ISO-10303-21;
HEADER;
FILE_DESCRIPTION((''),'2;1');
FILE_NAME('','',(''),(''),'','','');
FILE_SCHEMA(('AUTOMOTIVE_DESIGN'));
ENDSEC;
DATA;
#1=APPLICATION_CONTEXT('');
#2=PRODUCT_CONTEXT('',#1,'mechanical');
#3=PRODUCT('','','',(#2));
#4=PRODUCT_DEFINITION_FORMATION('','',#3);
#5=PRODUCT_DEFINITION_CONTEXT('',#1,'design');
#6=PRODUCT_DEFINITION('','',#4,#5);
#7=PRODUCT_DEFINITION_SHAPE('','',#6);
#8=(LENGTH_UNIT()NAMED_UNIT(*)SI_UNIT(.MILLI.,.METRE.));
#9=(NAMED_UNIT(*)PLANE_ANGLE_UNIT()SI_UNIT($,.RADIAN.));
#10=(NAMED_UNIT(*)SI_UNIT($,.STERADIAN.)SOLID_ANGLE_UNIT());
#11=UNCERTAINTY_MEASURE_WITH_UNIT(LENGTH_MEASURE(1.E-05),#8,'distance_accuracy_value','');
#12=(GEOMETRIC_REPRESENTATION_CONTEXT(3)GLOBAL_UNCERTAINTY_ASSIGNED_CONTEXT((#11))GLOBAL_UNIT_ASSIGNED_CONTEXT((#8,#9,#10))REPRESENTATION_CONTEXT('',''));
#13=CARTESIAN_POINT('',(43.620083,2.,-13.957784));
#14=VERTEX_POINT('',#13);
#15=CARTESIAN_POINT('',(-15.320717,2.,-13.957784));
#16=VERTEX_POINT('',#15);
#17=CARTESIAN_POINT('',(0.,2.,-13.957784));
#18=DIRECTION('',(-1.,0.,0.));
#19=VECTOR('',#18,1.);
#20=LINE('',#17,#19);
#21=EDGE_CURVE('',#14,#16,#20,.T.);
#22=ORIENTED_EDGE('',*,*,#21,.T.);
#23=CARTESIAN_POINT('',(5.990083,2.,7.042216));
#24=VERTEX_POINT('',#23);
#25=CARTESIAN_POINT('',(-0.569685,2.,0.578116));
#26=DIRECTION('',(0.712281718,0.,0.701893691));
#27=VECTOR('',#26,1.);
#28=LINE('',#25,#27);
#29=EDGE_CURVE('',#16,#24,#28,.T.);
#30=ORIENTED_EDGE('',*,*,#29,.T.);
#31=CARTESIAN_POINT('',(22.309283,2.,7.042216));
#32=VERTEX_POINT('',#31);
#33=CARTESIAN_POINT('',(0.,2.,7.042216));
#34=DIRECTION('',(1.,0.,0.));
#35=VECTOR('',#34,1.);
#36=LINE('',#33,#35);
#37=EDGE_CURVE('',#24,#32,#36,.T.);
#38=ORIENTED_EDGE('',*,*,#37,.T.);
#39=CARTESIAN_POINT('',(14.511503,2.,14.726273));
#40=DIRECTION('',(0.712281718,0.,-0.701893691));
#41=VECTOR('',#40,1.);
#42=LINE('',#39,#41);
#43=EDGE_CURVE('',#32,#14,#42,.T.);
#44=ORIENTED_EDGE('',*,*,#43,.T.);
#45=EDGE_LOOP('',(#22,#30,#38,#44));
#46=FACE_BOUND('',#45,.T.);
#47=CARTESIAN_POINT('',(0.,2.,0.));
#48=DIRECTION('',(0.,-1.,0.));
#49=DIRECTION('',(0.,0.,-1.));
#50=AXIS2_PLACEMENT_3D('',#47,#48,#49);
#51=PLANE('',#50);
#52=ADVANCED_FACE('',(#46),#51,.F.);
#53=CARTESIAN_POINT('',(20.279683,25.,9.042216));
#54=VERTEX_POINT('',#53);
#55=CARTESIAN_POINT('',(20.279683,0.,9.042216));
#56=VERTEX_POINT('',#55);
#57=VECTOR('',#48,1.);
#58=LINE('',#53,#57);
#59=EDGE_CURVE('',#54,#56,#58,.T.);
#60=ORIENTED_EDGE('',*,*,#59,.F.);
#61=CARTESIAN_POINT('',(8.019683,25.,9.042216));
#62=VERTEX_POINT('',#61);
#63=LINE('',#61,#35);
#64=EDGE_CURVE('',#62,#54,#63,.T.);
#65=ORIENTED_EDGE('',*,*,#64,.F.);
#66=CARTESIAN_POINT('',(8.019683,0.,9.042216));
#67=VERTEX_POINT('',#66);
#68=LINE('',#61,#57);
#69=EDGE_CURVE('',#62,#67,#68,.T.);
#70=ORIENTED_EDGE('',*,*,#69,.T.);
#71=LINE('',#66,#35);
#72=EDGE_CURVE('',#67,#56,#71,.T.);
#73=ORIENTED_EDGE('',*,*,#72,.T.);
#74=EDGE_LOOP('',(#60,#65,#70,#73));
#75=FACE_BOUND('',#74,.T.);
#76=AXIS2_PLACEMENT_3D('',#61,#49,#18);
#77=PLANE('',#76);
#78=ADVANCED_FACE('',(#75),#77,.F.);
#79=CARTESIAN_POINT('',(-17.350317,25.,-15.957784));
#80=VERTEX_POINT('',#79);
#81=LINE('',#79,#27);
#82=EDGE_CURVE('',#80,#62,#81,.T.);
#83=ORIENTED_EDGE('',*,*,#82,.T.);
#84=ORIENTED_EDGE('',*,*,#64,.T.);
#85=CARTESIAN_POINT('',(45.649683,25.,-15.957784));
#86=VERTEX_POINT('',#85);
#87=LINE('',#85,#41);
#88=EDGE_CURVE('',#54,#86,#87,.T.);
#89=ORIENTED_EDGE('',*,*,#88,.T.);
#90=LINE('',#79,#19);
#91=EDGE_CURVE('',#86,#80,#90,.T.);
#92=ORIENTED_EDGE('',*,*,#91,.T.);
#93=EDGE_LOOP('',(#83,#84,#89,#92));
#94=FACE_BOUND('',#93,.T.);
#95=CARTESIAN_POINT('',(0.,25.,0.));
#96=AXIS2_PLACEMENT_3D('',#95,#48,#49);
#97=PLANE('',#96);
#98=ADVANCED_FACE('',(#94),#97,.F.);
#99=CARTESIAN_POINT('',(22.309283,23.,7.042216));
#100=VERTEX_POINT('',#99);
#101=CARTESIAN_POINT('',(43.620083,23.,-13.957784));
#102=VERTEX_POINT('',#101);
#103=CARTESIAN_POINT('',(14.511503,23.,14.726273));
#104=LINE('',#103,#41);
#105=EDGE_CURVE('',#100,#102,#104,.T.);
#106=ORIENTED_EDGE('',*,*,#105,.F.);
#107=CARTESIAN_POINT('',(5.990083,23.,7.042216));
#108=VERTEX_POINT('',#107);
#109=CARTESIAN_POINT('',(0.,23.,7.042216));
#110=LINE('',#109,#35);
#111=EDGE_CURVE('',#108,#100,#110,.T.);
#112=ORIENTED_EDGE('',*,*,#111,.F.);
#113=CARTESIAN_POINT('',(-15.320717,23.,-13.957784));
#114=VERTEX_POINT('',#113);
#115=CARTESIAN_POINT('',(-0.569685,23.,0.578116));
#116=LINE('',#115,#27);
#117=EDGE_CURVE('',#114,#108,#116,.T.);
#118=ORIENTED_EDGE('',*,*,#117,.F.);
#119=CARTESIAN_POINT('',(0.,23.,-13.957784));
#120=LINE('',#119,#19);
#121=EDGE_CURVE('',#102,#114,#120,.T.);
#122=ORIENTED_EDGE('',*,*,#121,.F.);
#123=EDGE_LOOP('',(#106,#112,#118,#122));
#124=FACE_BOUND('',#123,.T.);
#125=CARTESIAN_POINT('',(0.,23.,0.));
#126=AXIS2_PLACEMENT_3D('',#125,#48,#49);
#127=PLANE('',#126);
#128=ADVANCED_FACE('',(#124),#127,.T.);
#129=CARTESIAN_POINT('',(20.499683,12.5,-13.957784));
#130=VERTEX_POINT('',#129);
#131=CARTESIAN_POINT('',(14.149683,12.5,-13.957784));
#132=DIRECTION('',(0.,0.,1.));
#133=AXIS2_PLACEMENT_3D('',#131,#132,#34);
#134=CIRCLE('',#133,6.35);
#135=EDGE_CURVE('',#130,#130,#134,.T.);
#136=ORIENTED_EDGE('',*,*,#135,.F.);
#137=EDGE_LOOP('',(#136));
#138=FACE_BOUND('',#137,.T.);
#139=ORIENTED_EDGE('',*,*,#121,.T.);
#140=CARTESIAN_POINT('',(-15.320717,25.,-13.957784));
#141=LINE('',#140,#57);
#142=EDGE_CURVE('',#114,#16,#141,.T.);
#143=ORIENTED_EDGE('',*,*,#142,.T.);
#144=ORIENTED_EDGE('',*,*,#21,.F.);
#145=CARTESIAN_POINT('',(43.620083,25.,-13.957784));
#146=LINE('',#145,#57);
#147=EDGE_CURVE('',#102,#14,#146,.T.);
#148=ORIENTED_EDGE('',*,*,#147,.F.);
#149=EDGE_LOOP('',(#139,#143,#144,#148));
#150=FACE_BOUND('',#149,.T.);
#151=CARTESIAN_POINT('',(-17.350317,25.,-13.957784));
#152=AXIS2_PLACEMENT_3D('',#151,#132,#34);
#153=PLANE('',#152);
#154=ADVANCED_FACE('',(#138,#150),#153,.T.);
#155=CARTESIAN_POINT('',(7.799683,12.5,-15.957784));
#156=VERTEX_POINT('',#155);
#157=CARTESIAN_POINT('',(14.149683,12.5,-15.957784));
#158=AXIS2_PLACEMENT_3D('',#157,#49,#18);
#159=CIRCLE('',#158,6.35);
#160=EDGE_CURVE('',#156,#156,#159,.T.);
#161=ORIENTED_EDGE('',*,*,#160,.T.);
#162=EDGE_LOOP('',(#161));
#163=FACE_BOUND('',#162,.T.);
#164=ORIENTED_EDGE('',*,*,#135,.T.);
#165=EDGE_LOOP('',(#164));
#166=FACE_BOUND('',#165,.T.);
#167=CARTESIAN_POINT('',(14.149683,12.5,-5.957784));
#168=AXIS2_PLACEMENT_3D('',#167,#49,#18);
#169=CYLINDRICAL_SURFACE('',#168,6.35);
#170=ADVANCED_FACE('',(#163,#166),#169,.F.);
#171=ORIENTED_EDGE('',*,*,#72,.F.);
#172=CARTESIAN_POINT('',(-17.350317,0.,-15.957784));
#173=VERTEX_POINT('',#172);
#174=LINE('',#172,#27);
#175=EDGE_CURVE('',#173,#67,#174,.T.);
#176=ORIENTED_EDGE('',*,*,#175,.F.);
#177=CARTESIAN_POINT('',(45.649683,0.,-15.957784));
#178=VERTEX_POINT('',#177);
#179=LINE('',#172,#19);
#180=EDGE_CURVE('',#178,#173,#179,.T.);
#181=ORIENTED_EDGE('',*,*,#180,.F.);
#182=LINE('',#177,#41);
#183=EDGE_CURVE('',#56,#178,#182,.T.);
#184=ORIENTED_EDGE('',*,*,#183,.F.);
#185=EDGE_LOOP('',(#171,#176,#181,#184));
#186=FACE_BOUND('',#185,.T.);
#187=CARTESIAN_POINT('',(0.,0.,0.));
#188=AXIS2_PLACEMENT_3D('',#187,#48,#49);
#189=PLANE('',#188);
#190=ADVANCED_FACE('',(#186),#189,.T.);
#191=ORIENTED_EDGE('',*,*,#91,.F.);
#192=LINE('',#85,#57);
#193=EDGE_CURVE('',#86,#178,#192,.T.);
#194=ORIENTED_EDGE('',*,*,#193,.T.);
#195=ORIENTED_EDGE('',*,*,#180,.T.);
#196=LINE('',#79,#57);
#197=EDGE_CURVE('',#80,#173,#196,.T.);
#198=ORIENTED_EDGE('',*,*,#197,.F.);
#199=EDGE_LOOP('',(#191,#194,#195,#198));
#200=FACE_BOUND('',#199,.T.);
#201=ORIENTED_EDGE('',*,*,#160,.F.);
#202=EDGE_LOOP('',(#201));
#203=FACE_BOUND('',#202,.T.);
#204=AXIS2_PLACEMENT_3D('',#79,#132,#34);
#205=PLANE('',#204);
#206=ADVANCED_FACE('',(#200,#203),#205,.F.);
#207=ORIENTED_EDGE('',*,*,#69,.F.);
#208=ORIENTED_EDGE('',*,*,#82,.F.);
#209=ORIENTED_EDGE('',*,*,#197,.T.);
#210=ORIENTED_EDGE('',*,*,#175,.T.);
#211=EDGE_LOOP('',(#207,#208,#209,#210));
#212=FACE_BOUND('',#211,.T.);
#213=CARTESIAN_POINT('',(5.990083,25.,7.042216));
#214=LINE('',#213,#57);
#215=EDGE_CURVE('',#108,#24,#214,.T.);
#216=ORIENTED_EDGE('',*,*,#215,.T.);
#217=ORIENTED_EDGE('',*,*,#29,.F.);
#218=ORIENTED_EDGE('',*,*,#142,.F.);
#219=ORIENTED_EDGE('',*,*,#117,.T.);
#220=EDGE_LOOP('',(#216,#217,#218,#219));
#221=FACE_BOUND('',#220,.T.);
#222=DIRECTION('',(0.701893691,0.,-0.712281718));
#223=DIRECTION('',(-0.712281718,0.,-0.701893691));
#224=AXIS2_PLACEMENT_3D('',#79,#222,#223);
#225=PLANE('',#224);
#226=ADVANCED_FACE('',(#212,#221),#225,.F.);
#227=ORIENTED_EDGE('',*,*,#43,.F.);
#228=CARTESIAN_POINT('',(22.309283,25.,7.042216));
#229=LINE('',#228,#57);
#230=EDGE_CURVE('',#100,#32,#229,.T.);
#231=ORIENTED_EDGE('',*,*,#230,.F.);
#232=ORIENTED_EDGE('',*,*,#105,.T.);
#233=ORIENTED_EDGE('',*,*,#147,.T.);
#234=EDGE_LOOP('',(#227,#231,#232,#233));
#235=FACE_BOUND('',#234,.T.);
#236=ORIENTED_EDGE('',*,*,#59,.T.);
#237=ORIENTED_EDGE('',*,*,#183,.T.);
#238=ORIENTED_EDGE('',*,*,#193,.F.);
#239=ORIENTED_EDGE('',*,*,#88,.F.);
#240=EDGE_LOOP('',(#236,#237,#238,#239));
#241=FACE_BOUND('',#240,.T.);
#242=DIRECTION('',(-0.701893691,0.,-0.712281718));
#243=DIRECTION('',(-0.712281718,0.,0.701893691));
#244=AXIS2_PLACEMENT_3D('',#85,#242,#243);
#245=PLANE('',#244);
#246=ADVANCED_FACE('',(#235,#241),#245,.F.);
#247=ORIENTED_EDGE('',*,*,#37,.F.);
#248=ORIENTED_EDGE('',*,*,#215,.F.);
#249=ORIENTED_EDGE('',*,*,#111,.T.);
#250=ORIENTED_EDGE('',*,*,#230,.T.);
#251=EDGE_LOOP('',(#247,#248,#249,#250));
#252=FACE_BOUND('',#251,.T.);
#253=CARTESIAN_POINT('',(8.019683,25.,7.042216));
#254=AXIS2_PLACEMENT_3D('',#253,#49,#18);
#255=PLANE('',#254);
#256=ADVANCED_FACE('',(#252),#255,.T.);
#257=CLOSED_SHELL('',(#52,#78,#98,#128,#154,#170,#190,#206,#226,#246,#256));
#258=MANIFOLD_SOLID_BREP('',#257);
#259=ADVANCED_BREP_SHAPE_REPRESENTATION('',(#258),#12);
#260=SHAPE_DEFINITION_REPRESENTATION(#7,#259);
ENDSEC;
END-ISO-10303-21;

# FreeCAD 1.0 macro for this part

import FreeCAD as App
import Part
import Sketcher


def faces_at(feature, points):
    """Names of the faces that lie closest to the given points."""
    faces = feature.Shape.Faces
    near = lambda p: min(range(len(faces)), key=lambda i: faces[i].distToShape(Part.Vertex(*p))[0])
    return sorted({f"Face{near(p) + 1}" for p in points})


def add_polygon(sketch, points):
    """Adds a closed chain of lines whose ends are joined by coincident constraints."""
    first, n = sketch.GeometryCount, len(points)
    for a, b in zip(points, points[1:] + points[:1]):
        sketch.addGeometry(Part.LineSegment(App.Vector(*a, 0), App.Vector(*b, 0)), False)
    for i in range(n):
        sketch.addConstraint(Sketcher.Constraint("Coincident", first + i, 2, first + (i + 1) % n, 1))

doc = App.newDocument("Part")
body = doc.addObject("PartDesign::Body", "Body")

sketch1 = body.newObject("Sketcher::SketchObject", "Sketch")
sketch1.AttachmentSupport = (doc.getObject("XZ_Plane"), [""])
sketch1.MapMode = "FlatFace"
add_polygon(sketch1, [(46, -16), (-17, -16), (8, 9), (20, 9)])
sketch1.addConstraint(Sketcher.Constraint("Horizontal", 0))
sketch1.addConstraint(Sketcher.Constraint("Horizontal", 2))
sketch1.addConstraint(Sketcher.Constraint("Equal", 1, 3))
sketch1.addConstraint(Sketcher.Constraint("DistanceX", 0, 2, 0, 1, 63.0))
sketch1.addConstraint(Sketcher.Constraint("DistanceY", 0, 2, 1, 2, 25.0))
sketch1.addConstraint(Sketcher.Constraint("DistanceX", 2, 1, 2, 2, 12.26))
sketch1.addConstraint(Sketcher.Constraint("DistanceX", 0, 2, -1, 1, 17.350317))
sketch1.addConstraint(Sketcher.Constraint("DistanceY", 0, 2, -1, 1, 15.957784))
pad1 = body.newObject("PartDesign::Pad", "Pad")
pad1.Profile = sketch1
pad1.Length = 25
pad1.Reversed = True
doc.recompute()

thickness = body.newObject("PartDesign::Thickness", "Thickness")
thickness.Base = (pad1, faces_at(pad1, [(32.965, 12.5, -3.458), (-4.665, 12.5, -3.458)]))
thickness.Value = 2
thickness.Reversed = True
thickness.Join = "Intersection"

sketch2 = body.newObject("Sketcher::SketchObject", "Sketch001")
sketch2.AttachmentSupport = (doc.getObject("XY_Plane"), [""])
sketch2.MapMode = "FlatFace"
sketch2.AttachmentOffset = App.Placement(App.Vector(0, 0, -15.957784), App.Rotation())
sketch2.addGeometry(Part.Circle(App.Vector(14, 12, 0), App.Vector(0, 0, 1), 6), False)
sketch2.addConstraint(Sketcher.Constraint("Diameter", 0, 12.7))
sketch2.addConstraint(Sketcher.Constraint("DistanceY", -1, 1, 0, 3, 12.5))
sketch2.addConstraint(Sketcher.Constraint("DistanceX", -1, 1, 0, 3, 14.149683))
pocket1 = body.newObject("PartDesign::Pocket", "Pocket")
pocket1.Profile = sketch2
pocket1.Length = 10
pocket1.Reversed = True

doc.recompute()
